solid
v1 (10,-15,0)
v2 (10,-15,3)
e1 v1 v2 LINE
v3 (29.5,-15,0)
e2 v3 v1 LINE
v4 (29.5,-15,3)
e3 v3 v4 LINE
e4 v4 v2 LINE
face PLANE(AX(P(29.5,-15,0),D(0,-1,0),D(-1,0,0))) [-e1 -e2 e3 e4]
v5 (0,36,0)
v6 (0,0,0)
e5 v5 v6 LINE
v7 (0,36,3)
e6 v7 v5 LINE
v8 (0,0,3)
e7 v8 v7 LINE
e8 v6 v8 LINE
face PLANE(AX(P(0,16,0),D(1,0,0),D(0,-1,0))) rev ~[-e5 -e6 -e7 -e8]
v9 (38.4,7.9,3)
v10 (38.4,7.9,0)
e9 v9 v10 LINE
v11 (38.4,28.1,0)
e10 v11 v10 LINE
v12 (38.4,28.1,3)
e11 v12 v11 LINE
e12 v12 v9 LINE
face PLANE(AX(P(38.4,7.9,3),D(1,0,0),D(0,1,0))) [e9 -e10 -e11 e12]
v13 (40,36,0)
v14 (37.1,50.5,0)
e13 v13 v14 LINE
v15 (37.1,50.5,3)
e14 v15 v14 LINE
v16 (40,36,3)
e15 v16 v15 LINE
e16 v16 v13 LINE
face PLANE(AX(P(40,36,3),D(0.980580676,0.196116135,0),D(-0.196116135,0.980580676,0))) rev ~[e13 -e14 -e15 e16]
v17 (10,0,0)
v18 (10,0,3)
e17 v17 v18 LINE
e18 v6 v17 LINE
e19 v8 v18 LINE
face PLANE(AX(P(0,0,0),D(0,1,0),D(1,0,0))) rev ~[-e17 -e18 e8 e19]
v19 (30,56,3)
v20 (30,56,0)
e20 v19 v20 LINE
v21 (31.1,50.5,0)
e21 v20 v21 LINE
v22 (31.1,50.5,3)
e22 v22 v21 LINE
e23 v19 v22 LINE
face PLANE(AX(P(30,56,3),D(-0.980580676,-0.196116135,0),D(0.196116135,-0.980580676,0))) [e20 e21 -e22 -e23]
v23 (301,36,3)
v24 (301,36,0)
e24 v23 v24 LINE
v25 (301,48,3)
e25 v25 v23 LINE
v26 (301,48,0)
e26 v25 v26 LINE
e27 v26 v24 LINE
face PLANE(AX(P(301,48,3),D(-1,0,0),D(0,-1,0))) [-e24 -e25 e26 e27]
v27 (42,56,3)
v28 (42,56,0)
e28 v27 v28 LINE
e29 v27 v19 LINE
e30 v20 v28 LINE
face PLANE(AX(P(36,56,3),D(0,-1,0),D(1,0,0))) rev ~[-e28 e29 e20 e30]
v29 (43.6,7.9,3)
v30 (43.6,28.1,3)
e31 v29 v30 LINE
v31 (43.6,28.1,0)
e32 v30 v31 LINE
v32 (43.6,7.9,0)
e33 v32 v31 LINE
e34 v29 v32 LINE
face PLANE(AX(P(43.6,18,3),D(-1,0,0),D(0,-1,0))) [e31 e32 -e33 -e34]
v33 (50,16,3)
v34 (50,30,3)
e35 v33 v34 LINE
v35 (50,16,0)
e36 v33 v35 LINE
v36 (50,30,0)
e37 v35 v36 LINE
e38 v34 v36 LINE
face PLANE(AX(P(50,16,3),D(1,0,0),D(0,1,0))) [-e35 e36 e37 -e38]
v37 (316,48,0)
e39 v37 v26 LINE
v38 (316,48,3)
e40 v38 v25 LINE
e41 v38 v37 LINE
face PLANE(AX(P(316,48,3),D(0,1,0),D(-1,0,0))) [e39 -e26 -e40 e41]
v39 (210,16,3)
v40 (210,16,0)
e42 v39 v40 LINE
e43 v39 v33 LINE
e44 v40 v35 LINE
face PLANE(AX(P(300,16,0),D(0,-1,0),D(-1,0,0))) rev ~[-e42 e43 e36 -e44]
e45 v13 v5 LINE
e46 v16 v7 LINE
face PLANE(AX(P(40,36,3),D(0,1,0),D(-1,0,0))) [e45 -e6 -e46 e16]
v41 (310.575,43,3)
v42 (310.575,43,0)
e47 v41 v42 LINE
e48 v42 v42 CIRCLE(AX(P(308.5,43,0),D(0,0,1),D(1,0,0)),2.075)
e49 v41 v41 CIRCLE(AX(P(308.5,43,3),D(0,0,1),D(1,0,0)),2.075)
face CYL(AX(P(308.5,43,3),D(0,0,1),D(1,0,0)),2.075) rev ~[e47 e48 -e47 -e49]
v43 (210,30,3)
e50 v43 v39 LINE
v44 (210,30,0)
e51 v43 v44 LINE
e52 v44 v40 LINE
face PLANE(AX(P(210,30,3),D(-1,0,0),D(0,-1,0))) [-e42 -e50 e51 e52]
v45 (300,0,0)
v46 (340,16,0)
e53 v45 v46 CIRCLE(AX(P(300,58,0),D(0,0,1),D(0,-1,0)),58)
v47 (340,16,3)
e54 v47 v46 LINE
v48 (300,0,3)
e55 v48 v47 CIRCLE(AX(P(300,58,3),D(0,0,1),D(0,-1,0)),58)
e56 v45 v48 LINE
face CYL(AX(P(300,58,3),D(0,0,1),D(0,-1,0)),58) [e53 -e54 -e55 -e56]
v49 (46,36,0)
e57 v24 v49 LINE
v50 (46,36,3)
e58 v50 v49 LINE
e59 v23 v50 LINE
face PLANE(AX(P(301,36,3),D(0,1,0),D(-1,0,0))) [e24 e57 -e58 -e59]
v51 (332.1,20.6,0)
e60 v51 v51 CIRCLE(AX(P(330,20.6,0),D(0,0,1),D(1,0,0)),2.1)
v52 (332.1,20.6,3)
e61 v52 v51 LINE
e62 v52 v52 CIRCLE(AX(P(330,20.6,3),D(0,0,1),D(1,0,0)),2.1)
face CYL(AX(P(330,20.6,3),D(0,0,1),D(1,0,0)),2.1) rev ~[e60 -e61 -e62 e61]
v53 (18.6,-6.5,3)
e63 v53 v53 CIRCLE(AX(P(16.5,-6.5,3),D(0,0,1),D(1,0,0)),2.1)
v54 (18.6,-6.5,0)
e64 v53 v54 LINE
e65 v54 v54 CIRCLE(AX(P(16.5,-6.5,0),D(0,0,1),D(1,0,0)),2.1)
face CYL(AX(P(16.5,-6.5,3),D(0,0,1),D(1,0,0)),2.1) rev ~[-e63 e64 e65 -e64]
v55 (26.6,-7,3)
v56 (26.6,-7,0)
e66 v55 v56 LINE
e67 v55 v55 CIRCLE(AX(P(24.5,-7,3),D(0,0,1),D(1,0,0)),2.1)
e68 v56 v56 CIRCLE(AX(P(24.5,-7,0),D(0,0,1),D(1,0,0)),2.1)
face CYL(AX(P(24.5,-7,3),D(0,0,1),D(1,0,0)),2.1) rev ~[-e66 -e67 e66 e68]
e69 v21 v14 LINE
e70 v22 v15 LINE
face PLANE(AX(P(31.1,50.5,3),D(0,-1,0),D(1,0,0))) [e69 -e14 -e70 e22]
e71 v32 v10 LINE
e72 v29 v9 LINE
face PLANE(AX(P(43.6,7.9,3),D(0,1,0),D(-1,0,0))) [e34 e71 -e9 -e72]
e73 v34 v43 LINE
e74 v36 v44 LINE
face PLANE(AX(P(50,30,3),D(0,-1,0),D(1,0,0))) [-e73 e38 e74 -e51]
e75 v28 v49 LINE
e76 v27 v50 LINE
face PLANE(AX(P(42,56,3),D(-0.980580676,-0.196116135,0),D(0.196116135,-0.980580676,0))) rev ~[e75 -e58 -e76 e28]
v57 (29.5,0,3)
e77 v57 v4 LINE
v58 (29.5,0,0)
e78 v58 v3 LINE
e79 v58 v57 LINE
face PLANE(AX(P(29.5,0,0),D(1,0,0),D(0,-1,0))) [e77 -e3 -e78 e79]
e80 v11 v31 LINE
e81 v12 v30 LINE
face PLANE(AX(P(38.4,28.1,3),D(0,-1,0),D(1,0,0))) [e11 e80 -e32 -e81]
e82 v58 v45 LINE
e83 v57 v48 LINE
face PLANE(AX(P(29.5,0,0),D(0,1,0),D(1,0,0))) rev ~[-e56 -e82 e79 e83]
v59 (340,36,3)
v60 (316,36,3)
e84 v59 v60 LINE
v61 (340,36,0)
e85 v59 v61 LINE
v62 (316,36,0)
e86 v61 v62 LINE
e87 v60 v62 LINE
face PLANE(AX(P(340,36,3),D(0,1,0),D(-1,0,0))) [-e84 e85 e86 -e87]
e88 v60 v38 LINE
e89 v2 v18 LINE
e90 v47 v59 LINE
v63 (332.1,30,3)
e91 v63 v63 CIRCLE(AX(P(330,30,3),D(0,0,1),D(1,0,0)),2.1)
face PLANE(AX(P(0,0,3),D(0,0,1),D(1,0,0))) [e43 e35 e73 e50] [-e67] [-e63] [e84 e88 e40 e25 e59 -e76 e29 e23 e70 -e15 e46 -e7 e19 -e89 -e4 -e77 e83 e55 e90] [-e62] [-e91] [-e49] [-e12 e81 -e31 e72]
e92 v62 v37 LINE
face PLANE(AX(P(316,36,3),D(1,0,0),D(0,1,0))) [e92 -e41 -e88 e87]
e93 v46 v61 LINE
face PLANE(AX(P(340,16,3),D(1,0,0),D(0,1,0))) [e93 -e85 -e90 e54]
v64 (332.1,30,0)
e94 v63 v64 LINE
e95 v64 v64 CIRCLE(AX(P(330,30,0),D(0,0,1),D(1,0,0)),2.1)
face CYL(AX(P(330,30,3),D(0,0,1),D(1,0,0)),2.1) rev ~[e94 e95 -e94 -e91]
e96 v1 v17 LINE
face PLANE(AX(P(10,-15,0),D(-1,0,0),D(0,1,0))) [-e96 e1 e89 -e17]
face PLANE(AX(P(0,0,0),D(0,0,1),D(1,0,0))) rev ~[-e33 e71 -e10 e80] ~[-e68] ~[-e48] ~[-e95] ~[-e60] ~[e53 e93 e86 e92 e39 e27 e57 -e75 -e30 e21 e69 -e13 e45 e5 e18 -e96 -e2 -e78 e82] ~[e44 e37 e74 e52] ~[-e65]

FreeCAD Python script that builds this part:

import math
import FreeCAD as App
import Part
import Sketcher
from FreeCAD import Vector

doc = App.newDocument("Part")
params = doc.addObject("Spreadsheet::Sheet", "Params")
for row, (alias, value) in enumerate([
    ("sketch1_width", "10 mm"),
    ("sketch1_width2", "300 mm"),
    ("sketch1_height", "16 mm"),
    ("sketch1_height2", "15 mm"),
    ("sketch1_width3", "19.5 mm"),
    ("pad1_length", "3 mm"),
    ("sketch2_diameter", "4.2 mm"),
    ("sketch2_diameter2", "4.15 mm"),
    ("sketch2_width", "50 mm"),
    ("sketch2_width2", "160 mm"),
    ("sketch2_width3", "24 mm"),
    ("pad2_length", "3 mm"),
    ("sketch3_diameter", "4.2 mm"),
    ("pocket1_length", "3 mm"),
    ("sketch4_width", "5.2 mm"),
    ("sketch4_height", "20.2 mm"),
    ("pocket2_length", "3 mm"),
    ("sketch5_radius", "58 mm"),
    ("sketch5_width", "40 mm"),
    ("pad3_length", "3 mm"),
], start=1):
    params.set(f"A{row}", alias)
    params.set(f"B{row}", "=" + value)
    params.setAlias(f"B{row}", alias)

body = doc.addObject("PartDesign::Body", "Body")

# Sketch on XY plane
sketch1 = body.newObject("Sketcher::SketchObject", "Sketch")
sketch1.AttachmentSupport = (doc.getObject("XY_Plane"), [""])
sketch1.MapMode = "FlatFace"
sketch1.addGeometry(Part.LineSegment(Vector(0, 16, 0), Vector(0, 0, 0)), False)
sketch1.addGeometry(Part.LineSegment(Vector(0, 0, 0), Vector(10, 0, 0)), False)
sketch1.addGeometry(Part.LineSegment(Vector(10, 0, 0), Vector(10, -15, 0)), False)
sketch1.addGeometry(Part.LineSegment(Vector(10, -15, 0), Vector(29.5, -15, 0)), False)
sketch1.addGeometry(Part.LineSegment(Vector(29.5, -15, 0), Vector(29.5, 0, 0)), False)
sketch1.addGeometry(Part.LineSegment(Vector(29.5, 0, 0), Vector(300, 0, 0)), False)
sketch1.addGeometry(Part.LineSegment(Vector(300, 0, 0), Vector(300, 16, 0)), False)
sketch1.addGeometry(Part.LineSegment(Vector(300, 16, 0), Vector(0, 16, 0)), False)
sketch1.addConstraint(Sketcher.Constraint("Coincident", 0, 2, 1, 1))
sketch1.addConstraint(Sketcher.Constraint("Coincident", 1, 2, 2, 1))
sketch1.addConstraint(Sketcher.Constraint("Coincident", 2, 2, 3, 1))
sketch1.addConstraint(Sketcher.Constraint("Coincident", 3, 2, 4, 1))
sketch1.addConstraint(Sketcher.Constraint("Coincident", 4, 2, 5, 1))
sketch1.addConstraint(Sketcher.Constraint("Coincident", 5, 2, 6, 1))
sketch1.addConstraint(Sketcher.Constraint("Coincident", 6, 2, 7, 1))
sketch1.addConstraint(Sketcher.Constraint("Coincident", 7, 2, 0, 1))
sketch1.addConstraint(Sketcher.Constraint("Vertical", 0))
sketch1.addConstraint(Sketcher.Constraint("Horizontal", 1))
sketch1.addConstraint(Sketcher.Constraint("Vertical", 2))
sketch1.addConstraint(Sketcher.Constraint("Horizontal", 3))
sketch1.addConstraint(Sketcher.Constraint("Vertical", 4))
sketch1.addConstraint(Sketcher.Constraint("Horizontal", 5))
sketch1.addConstraint(Sketcher.Constraint("Vertical", 6))
sketch1.addConstraint(Sketcher.Constraint("Horizontal", 7))
sketch1.addConstraint(Sketcher.Constraint("Coincident", 0, 2, -1, 1))
sketch1.addConstraint(Sketcher.Constraint("PointOnObject", 4, 2, -1))
sketch1.addConstraint(Sketcher.Constraint("DistanceX", 1, 1, 1, 2, 10.0))
sketch1.addConstraint(Sketcher.Constraint("DistanceX", 7, 2, 7, 1, 300.0))
sketch1.addConstraint(Sketcher.Constraint("DistanceY", 0, 2, 0, 1, 16.0))
sketch1.addConstraint(Sketcher.Constraint("DistanceY", 2, 2, 2, 1, 15.0))
sketch1.addConstraint(Sketcher.Constraint("DistanceX", 3, 1, 3, 2, 19.5))
sketch1.setExpression("Constraints[18]", "Params.sketch1_width")
sketch1.setExpression("Constraints[19]", "Params.sketch1_width2")
sketch1.setExpression("Constraints[20]", "Params.sketch1_height")
sketch1.setExpression("Constraints[21]", "Params.sketch1_height2")
sketch1.setExpression("Constraints[22]", "Params.sketch1_width3")
pad1 = body.newObject("PartDesign::Pad", "Pad")
pad1.Profile = sketch1
pad1.setExpression("Length", "Params.pad1_length")

# Sketch on XY plane
sketch2 = body.newObject("Sketcher::SketchObject", "Sketch001")
sketch2.AttachmentSupport = (doc.getObject("XY_Plane"), [""])
sketch2.MapMode = "FlatFace"
sketch2.AttachmentOffset = App.Placement(Vector(0, 0, 3), App.Rotation())
sketch2.addGeometry(Part.LineSegment(Vector(0, 36, 0), Vector(0, 16, 0)), False)
sketch2.addGeometry(Part.LineSegment(Vector(0, 16, 0), Vector(50, 16, 0)), False)
sketch2.addGeometry(Part.LineSegment(Vector(50, 16, 0), Vector(50, 30, 0)), False)
sketch2.addGeometry(Part.LineSegment(Vector(50, 30, 0), Vector(210, 30, 0)), False)
sketch2.addGeometry(Part.LineSegment(Vector(210, 30, 0), Vector(210, 16, 0)), False)
sketch2.addGeometry(Part.LineSegment(Vector(210, 16, 0), Vector(340, 16, 0)), False)
sketch2.addGeometry(Part.LineSegment(Vector(340, 16, 0), Vector(340, 36, 0)), False)
sketch2.addGeometry(Part.LineSegment(Vector(340, 36, 0), Vector(316, 36, 0)), False)
sketch2.addGeometry(Part.LineSegment(Vector(316, 36, 0), Vector(316, 48, 0)), False)
sketch2.addGeometry(Part.LineSegment(Vector(316, 48, 0), Vector(301, 48, 0)), False)
sketch2.addGeometry(Part.LineSegment(Vector(301, 48, 0), Vector(301, 36, 0)), False)
sketch2.addGeometry(Part.LineSegment(Vector(301, 36, 0), Vector(46, 36, 0)), False)
sketch2.addGeometry(Part.LineSegment(Vector(46, 36, 0), Vector(42, 56, 0)), False)
sketch2.addGeometry(Part.LineSegment(Vector(42, 56, 0), Vector(30, 56, 0)), False)
sketch2.addGeometry(Part.LineSegment(Vector(30, 56, 0), Vector(31.1, 50.5, 0)), False)
sketch2.addGeometry(Part.LineSegment(Vector(31.1, 50.5, 0), Vector(37.1, 50.5, 0)), False)
sketch2.addGeometry(Part.LineSegment(Vector(37.1, 50.5, 0), Vector(40, 36, 0)), False)
sketch2.addGeometry(Part.LineSegment(Vector(40, 36, 0), Vector(0, 36, 0)), False)
sketch2.addGeometry(Part.Circle(Vector(330, 20.6, 0), Vector(0, 0, 1), 2.1), False)
sketch2.addGeometry(Part.Circle(Vector(330, 30, 0), Vector(0, 0, 1), 2.1), False)
sketch2.addGeometry(Part.Circle(Vector(308.5, 43, 0), Vector(0, 0, 1), 2.075), False)
sketch2.addConstraint(Sketcher.Constraint("Coincident", 0, 2, 1, 1))
sketch2.addConstraint(Sketcher.Constraint("Coincident", 1, 2, 2, 1))
sketch2.addConstraint(Sketcher.Constraint("Coincident", 2, 2, 3, 1))
sketch2.addConstraint(Sketcher.Constraint("Coincident", 3, 2, 4, 1))
sketch2.addConstraint(Sketcher.Constraint("Coincident", 4, 2, 5, 1))
sketch2.addConstraint(Sketcher.Constraint("Coincident", 5, 2, 6, 1))
sketch2.addConstraint(Sketcher.Constraint("Coincident", 6, 2, 7, 1))
sketch2.addConstraint(Sketcher.Constraint("Coincident", 7, 2, 8, 1))
sketch2.addConstraint(Sketcher.Constraint("Coincident", 8, 2, 9, 1))
sketch2.addConstraint(Sketcher.Constraint("Coincident", 9, 2, 10, 1))
sketch2.addConstraint(Sketcher.Constraint("Coincident", 10, 2, 11, 1))
sketch2.addConstraint(Sketcher.Constraint("Coincident", 11, 2, 12, 1))
sketch2.addConstraint(Sketcher.Constraint("Coincident", 12, 2, 13, 1))
sketch2.addConstraint(Sketcher.Constraint("Coincident", 13, 2, 14, 1))
sketch2.addConstraint(Sketcher.Constraint("Coincident", 14, 2, 15, 1))
sketch2.addConstraint(Sketcher.Constraint("Coincident", 15, 2, 16, 1))
sketch2.addConstraint(Sketcher.Constraint("Coincident", 16, 2, 17, 1))
sketch2.addConstraint(Sketcher.Constraint("Coincident", 17, 2, 0, 1))
sketch2.addConstraint(Sketcher.Constraint("Vertical", 0))
sketch2.addConstraint(Sketcher.Constraint("Horizontal", 1))
sketch2.addConstraint(Sketcher.Constraint("Vertical", 2))
sketch2.addConstraint(Sketcher.Constraint("Horizontal", 3))
sketch2.addConstraint(Sketcher.Constraint("Vertical", 4))
sketch2.addConstraint(Sketcher.Constraint("Horizontal", 5))
sketch2.addConstraint(Sketcher.Constraint("Vertical", 6))
sketch2.addConstraint(Sketcher.Constraint("Horizontal", 7))
sketch2.addConstraint(Sketcher.Constraint("Vertical", 8))
sketch2.addConstraint(Sketcher.Constraint("Horizontal", 9))
sketch2.addConstraint(Sketcher.Constraint("Vertical", 10))
sketch2.addConstraint(Sketcher.Constraint("Horizontal", 11))
sketch2.addConstraint(Sketcher.Constraint("Horizontal", 13))
sketch2.addConstraint(Sketcher.Constraint("Horizontal", 15))
sketch2.addConstraint(Sketcher.Constraint("Horizontal", 17))
sketch2.addConstraint(Sketcher.Constraint("Equal", 18, 19))
sketch2.addConstraint(Sketcher.Constraint("PointOnObject", 0, 2, -2))
sketch2.addConstraint(Sketcher.Constraint("Parallel", 12, 14))
sketch2.addConstraint(Sketcher.Constraint("Parallel", 14, 16))
sketch2.addConstraint(Sketcher.Constraint("Horizontal", 19, 3, 2, 2))
sketch2.addConstraint(Sketcher.Constraint("Horizontal", 1, 2, 4, 2))
sketch2.addConstraint(Sketcher.Constraint("Horizontal", 7, 2, 10, 2))
sketch2.addConstraint(Sketcher.Constraint("Horizontal", 11, 2, 16, 2))
sketch2.addConstraint(Sketcher.Constraint("Vertical", 18, 3, 19, 3))
sketch2.addConstraint(Sketcher.Constraint("Equal", 13, 8))
sketch2.addConstraint(Sketcher.Constraint("Diameter", 18, 4.2))
sketch2.addConstraint(Sketcher.Constraint("Diameter", 20, 4.15))
sketch2.addConstraint(Sketcher.Constraint("DistanceX", 1, 1, 1, 2, 50.0))
sketch2.addConstraint(Sketcher.Constraint("DistanceX", 3, 1, 3, 2, 160.0))
sketch2.addConstraint(Sketcher.Constraint("DistanceX", 7, 2, 7, 1, 24.0))
sketch2.addConstraint(Sketcher.Constraint("DistanceX", 9, 2, 9, 1, 15.0))
sketch2.addConstraint(Sketcher.Constraint("DistanceX", 13, 2, 13, 1, 12.0))
sketch2.addConstraint(Sketcher.Constraint("DistanceX", 15, 1, 15, 2, 6.0))
sketch2.addConstraint(Sketcher.Constraint("DistanceX", 17, 2, 17, 1, 40.0))
sketch2.addConstraint(Sketcher.Constraint("DistanceY", 0, 2, 0, 1, 20.0))
sketch2.addConstraint(Sketcher.Constraint("DistanceY", 2, 1, 2, 2, 14.0))
sketch2.addConstraint(Sketcher.Constraint("DistanceX", 18, 3, 5, 2, 10.0))
sketch2.addConstraint(Sketcher.Constraint("DistanceY", 6, 2, 20, 3, 7.0))
sketch2.addConstraint(Sketcher.Constraint("DistanceX", 12, 2, 11, 2, 4.0))
sketch2.addConstraint(Sketcher.Constraint("DistanceY", 11, 2, 12, 2, 20.0))
sketch2.addConstraint(Sketcher.Constraint("DistanceY", 18, 3, 19, 3, 9.4))
sketch2.addConstraint(Sketcher.Constraint("DistanceY", 14, 2, 13, 2, 5.5))
sketch2.addConstraint(Sketcher.Constraint("DistanceX", 5, 1, 5, 2, 130.0))
sketch2.addConstraint(Sketcher.Constraint("DistanceY", -1, 1, 19, 3, 30.0))
sketch2.addConstraint(Sketcher.Constraint("DistanceX", -1, 1, 20, 3, 308.5))
sketch2.setExpression("Constraints[43]", "Params.sketch2_diameter")
sketch2.setExpression("Constraints[44]", "Params.sketch2_diameter2")
sketch2.setExpression("Constraints[45]", "Params.sketch2_width")
sketch2.setExpression("Constraints[46]", "Params.sketch2_width2")
sketch2.setExpression("Constraints[47]", "Params.sketch2_width3")
pad2 = body.newObject("PartDesign::Pad", "Pad001")
pad2.Profile = sketch2
pad2.setExpression("Length", "Params.pad2_length")
pad2.Reversed = True

# Sketch on XY plane
sketch3 = body.newObject("Sketcher::SketchObject", "Sketch002")
sketch3.AttachmentSupport = (doc.getObject("XY_Plane"), [""])
sketch3.MapMode = "FlatFace"
sketch3.AttachmentOffset = App.Placement(Vector(0, 0, 3), App.Rotation())
sketch3.addGeometry(Part.Circle(Vector(16.5, -6.5, 0), Vector(0, 0, 1), 2.1), False)
sketch3.addGeometry(Part.Circle(Vector(24.5, -7, 0), Vector(0, 0, 1), 2.1), False)
sketch3.addConstraint(Sketcher.Constraint("Equal", 0, 1))
sketch3.addConstraint(Sketcher.Constraint("Diameter", 0, 4.2))
sketch3.addConstraint(Sketcher.Constraint("DistanceY", 1, 3, -1, 1, 7.0))
sketch3.addConstraint(Sketcher.Constraint("DistanceX", 0, 3, 1, 3, 8.0))
sketch3.addConstraint(Sketcher.Constraint("DistanceY", 0, 3, -1, 1, 6.5))
sketch3.addConstraint(Sketcher.Constraint("DistanceX", -1, 1, 0, 3, 16.5))
sketch3.setExpression("Constraints[1]", "Params.sketch3_diameter")
pocket1 = body.newObject("PartDesign::Pocket", "Pocket")
pocket1.Profile = sketch3
pocket1.setExpression("Length", "Params.pocket1_length")

# Sketch on XY plane
sketch4 = body.newObject("Sketcher::SketchObject", "Sketch003")
sketch4.AttachmentSupport = (doc.getObject("XY_Plane"), [""])
sketch4.MapMode = "FlatFace"
sketch4.AttachmentOffset = App.Placement(Vector(0, 0, 3), App.Rotation())
sketch4.addGeometry(Part.LineSegment(Vector(43.6, 7.9, 0), Vector(43.6, 28.1, 0)), False)
sketch4.addGeometry(Part.LineSegment(Vector(43.6, 28.1, 0), Vector(38.4, 28.1, 0)), False)
sketch4.addGeometry(Part.LineSegment(Vector(38.4, 28.1, 0), Vector(38.4, 7.9, 0)), False)
sketch4.addGeometry(Part.LineSegment(Vector(38.4, 7.9, 0), Vector(43.6, 7.9, 0)), False)
sketch4.addConstraint(Sketcher.Constraint("Coincident", 0, 2, 1, 1))
sketch4.addConstraint(Sketcher.Constraint("Coincident", 1, 2, 2, 1))
sketch4.addConstraint(Sketcher.Constraint("Coincident", 2, 2, 3, 1))
sketch4.addConstraint(Sketcher.Constraint("Coincident", 3, 2, 0, 1))
sketch4.addConstraint(Sketcher.Constraint("Vertical", 0))
sketch4.addConstraint(Sketcher.Constraint("Horizontal", 1))
sketch4.addConstraint(Sketcher.Constraint("Vertical", 2))
sketch4.addConstraint(Sketcher.Constraint("Horizontal", 3))
sketch4.addConstraint(Sketcher.Constraint("DistanceX", 1, 2, 1, 1, 5.2))
sketch4.addConstraint(Sketcher.Constraint("DistanceY", 0, 1, 0, 2, 20.2))
sketch4.addConstraint(Sketcher.Constraint("DistanceX", -1, 1, 0, 2, 43.6))
sketch4.addConstraint(Sketcher.Constraint("DistanceY", -1, 1, 0, 2, 28.1))
sketch4.setExpression("Constraints[8]", "Params.sketch4_width")
sketch4.setExpression("Constraints[9]", "Params.sketch4_height")
pocket2 = body.newObject("PartDesign::Pocket", "Pocket001")
pocket2.Profile = sketch4
pocket2.setExpression("Length", "Params.pocket2_length")

# Sketch on XY plane
sketch5 = body.newObject("Sketcher::SketchObject", "Sketch004")
sketch5.AttachmentSupport = (doc.getObject("XY_Plane"), [""])
sketch5.MapMode = "FlatFace"
sketch5.AttachmentOffset = App.Placement(Vector(0, 0, 3), App.Rotation())
sketch5.addGeometry(Part.LineSegment(Vector(300, 16, 0), Vector(300, 0, 0)), False)
sketch5.addGeometry(Part.ArcOfCircle(Part.Circle(Vector(300, 58, 0), Vector(0, 0, 1), 58), math.radians(-90), math.radians(-46.397181)), False)
sketch5.addGeometry(Part.LineSegment(Vector(340, 16, 0), Vector(300, 16, 0)), False)
sketch5.addConstraint(Sketcher.Constraint("Coincident", 0, 2, 1, 1))
sketch5.addConstraint(Sketcher.Constraint("Coincident", 1, 2, 2, 1))
sketch5.addConstraint(Sketcher.Constraint("Coincident", 2, 2, 0, 1))
sketch5.addConstraint(Sketcher.Constraint("Vertical", 0))
sketch5.addConstraint(Sketcher.Constraint("Horizontal", 2))
sketch5.addConstraint(Sketcher.Constraint("PointOnObject", 0, 2, -1))
sketch5.addConstraint(Sketcher.Constraint("Vertical", 1, 3, 0, 2))
sketch5.addConstraint(Sketcher.Constraint("Radius", 1, 58.0))
sketch5.addConstraint(Sketcher.Constraint("DistanceX", 2, 2, 2, 1, 40.0))
sketch5.addConstraint(Sketcher.Constraint("DistanceX", -1, 1, 1, 3, 300.0))
sketch5.setExpression("Constraints[7]", "Params.sketch5_radius")
sketch5.setExpression("Constraints[8]", "Params.sketch5_width")
pad3 = body.newObject("PartDesign::Pad", "Pad002")
pad3.Profile = sketch5
pad3.setExpression("Length", "Params.pad3_length")
pad3.Reversed = True

doc.recompute()
